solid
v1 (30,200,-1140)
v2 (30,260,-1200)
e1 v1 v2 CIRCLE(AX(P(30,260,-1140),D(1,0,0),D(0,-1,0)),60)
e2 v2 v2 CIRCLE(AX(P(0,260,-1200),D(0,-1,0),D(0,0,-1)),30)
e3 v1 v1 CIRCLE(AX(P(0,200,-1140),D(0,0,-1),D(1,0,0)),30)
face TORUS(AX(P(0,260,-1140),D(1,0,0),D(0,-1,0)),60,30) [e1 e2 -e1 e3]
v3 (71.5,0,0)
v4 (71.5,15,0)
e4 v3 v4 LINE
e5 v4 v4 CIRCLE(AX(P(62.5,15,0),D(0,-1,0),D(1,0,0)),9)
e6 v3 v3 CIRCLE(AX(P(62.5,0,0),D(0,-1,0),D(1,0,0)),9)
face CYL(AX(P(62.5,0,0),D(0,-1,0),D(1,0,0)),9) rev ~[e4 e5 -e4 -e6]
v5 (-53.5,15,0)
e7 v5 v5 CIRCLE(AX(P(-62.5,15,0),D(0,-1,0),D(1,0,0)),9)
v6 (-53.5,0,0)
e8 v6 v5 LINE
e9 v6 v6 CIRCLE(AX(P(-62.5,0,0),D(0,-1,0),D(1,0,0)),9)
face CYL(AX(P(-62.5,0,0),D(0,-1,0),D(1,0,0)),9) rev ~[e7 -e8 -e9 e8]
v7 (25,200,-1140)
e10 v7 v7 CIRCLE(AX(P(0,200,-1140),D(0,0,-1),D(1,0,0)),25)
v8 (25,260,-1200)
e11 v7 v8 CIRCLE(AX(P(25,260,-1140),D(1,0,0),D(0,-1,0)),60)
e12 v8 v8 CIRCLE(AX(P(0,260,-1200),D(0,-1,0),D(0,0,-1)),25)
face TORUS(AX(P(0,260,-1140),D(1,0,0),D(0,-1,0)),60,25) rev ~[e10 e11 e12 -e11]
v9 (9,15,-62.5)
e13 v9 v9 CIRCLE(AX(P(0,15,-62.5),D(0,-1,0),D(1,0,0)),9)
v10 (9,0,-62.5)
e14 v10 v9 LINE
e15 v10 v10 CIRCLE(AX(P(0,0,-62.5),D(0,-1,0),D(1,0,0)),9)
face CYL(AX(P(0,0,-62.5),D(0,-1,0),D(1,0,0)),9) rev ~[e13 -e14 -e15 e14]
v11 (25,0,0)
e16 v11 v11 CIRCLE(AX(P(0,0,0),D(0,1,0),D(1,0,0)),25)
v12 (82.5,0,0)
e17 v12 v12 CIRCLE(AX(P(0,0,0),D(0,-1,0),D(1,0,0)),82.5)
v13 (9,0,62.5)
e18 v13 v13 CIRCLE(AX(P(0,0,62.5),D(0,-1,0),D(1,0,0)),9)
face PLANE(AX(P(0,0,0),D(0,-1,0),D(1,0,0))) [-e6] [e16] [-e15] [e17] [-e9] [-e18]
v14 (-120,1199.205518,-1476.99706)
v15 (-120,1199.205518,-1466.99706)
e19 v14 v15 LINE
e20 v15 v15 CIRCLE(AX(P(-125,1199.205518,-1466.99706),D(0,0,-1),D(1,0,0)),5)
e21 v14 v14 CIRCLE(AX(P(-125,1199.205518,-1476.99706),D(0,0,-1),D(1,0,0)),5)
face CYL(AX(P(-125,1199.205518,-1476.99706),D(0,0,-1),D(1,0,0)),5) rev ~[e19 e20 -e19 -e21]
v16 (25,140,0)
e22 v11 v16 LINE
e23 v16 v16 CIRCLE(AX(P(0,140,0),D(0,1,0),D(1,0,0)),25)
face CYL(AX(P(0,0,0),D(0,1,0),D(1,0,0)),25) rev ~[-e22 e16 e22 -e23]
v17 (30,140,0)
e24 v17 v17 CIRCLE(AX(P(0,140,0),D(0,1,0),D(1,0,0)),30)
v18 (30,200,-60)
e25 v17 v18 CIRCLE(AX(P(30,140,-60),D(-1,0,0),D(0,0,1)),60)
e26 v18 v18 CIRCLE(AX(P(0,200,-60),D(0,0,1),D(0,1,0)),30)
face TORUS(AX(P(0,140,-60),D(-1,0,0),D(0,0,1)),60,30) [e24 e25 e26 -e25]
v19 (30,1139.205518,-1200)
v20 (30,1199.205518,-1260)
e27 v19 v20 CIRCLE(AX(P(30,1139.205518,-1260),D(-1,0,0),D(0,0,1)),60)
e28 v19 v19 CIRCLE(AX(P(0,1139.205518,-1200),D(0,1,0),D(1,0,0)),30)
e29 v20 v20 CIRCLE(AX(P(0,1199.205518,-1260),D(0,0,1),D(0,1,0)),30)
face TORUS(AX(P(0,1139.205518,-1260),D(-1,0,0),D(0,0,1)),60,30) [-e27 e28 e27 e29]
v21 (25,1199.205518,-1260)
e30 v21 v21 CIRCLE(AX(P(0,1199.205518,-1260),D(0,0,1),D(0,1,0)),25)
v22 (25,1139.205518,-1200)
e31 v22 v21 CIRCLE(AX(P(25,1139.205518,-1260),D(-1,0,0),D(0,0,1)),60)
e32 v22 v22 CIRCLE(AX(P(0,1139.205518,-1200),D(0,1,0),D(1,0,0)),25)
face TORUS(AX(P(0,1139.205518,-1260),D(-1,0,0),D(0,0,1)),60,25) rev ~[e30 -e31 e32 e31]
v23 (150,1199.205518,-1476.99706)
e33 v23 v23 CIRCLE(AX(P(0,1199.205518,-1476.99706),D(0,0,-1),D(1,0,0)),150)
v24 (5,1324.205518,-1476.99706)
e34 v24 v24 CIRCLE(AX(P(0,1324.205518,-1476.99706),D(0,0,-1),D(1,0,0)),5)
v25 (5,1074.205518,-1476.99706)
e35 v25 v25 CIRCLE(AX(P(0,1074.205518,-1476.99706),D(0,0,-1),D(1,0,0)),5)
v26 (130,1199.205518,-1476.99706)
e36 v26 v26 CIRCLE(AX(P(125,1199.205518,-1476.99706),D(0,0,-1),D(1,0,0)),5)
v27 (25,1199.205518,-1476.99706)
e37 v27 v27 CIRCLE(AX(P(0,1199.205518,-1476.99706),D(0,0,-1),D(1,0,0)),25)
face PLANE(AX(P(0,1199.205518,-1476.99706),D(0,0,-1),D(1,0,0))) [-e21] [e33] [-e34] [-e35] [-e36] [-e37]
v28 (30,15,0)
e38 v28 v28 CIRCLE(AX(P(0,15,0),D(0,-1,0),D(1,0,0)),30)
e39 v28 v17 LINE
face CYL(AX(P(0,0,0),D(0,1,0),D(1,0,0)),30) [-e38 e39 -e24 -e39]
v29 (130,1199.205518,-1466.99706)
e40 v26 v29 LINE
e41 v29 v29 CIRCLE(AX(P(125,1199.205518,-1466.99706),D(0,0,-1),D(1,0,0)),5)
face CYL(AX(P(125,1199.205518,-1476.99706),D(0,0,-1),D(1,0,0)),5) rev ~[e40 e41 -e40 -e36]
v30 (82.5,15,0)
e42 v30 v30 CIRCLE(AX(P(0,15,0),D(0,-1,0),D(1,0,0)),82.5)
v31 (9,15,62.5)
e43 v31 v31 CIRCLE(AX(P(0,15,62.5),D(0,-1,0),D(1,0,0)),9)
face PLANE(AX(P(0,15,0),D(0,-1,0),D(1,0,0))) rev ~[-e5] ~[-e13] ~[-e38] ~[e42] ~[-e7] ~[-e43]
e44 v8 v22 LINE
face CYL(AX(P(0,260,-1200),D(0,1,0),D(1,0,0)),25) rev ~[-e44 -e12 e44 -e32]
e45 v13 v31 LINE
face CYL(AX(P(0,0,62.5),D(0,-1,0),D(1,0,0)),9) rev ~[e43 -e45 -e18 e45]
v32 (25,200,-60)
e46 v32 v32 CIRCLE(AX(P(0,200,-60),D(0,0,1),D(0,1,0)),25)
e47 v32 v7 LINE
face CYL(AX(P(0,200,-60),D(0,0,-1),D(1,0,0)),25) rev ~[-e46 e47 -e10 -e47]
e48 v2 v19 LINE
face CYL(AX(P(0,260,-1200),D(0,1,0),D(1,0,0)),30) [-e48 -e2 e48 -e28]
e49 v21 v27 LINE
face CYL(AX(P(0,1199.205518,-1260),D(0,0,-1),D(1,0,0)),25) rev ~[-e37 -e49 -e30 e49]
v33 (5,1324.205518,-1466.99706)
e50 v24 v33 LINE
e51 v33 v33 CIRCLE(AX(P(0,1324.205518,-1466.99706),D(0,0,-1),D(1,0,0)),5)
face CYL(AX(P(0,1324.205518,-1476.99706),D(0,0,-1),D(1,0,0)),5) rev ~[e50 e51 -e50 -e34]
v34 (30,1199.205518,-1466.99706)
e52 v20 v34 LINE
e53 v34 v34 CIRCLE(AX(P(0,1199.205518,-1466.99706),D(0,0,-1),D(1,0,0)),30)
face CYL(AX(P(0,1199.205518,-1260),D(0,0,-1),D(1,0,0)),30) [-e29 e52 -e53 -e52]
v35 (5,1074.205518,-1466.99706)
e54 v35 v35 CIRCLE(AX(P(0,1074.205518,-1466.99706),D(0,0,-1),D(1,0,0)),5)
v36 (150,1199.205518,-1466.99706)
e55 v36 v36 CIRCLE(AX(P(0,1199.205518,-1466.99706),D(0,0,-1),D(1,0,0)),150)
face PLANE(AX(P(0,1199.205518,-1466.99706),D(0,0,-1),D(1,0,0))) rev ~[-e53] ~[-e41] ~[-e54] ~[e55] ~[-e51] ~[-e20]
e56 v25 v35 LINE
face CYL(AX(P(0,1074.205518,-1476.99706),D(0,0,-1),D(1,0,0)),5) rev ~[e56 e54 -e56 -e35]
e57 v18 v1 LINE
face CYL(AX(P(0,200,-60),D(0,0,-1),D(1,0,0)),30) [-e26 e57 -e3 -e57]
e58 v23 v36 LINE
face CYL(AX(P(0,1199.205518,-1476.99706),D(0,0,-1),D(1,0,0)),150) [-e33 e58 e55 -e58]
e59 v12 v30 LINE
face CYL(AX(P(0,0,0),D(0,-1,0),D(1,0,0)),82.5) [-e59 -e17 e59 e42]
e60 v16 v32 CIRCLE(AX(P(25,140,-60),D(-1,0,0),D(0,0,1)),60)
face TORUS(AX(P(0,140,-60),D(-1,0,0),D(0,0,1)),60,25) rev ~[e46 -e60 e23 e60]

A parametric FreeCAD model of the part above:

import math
import FreeCAD as App
import Part
import Sketcher
from FreeCAD import Vector

doc = App.newDocument("Part")
body = doc.addObject("PartDesign::Body", "Body")

sketch1 = body.newObject("Sketcher::SketchObject", "Sketch")
sketch1.AttachmentSupport = (doc.getObject("XZ_Plane"), [""])
sketch1.MapMode = "FlatFace"
sketch1.addGeometry([
    Part.Circle(Vector(0, 0, 0), Vector(0, 0, 1), 30),
    Part.Circle(Vector(0, 0, 0), Vector(0, 0, 1), 25),
], False)
sketch1.addConstraint([
    Sketcher.Constraint("Coincident", 0, 3, -1, 1),
    Sketcher.Constraint("Coincident", 1, 3, -1, 1),
    Sketcher.Constraint("Diameter", 0, 60.0),
    Sketcher.Constraint("Diameter", 1, 50.0),
])

sketch2 = body.newObject("Sketcher::SketchObject", "Sketch001")
sketch2.AttachmentSupport = (doc.getObject("YZ_Plane"), [""])
sketch2.MapMode = "FlatFace"
sketch2.addGeometry([
    Part.LineSegment(Vector(0, 0, 0), Vector(140, 0, 0)),
    Part.ArcOfCircle(Part.Circle(Vector(140, -60, 0), Vector(0, 0, 1), 60), math.radians(0), math.radians(90)),
    Part.LineSegment(Vector(200, -60, 0), Vector(200, -1140, 0)),
    Part.ArcOfCircle(Part.Circle(Vector(260, -1140, 0), Vector(0, 0, 1), 60), math.radians(180), math.radians(270)),
    Part.LineSegment(Vector(260, -1200, 0), Vector(1139, -1200, 0)),
    Part.ArcOfCircle(Part.Circle(Vector(1139, -1260, 0), Vector(0, 0, 1), 60), math.radians(0), math.radians(90)),
    Part.LineSegment(Vector(1199, -1260, 0), Vector(1199, -1477, 0)),
], False)
sketch2.addConstraint([
    Sketcher.Constraint("Tangent", 0, 2, 1, 2),
    Sketcher.Constraint("Tangent", 1, 1, 2, 1),
    Sketcher.Constraint("Tangent", 2, 2, 3, 1),
    Sketcher.Constraint("Tangent", 3, 2, 4, 1),
    Sketcher.Constraint("Tangent", 4, 2, 5, 2),
    Sketcher.Constraint("Tangent", 5, 1, 6, 1),
    Sketcher.Constraint("Horizontal", 0),
    Sketcher.Constraint("Vertical", 2),
    Sketcher.Constraint("Horizontal", 4),
    Sketcher.Constraint("Vertical", 6),
    Sketcher.Constraint("Coincident", 0, 1, -1, 1),
    Sketcher.Constraint("Equal", 1, 3),
    Sketcher.Constraint("Equal", 3, 5),
    Sketcher.Constraint("Radius", 1, 60.0),
    Sketcher.Constraint("DistanceX", 0, 1, 0, 2, 140.0),
    Sketcher.Constraint("DistanceY", 2, 2, 2, 1, 1080.0),
    Sketcher.Constraint("DistanceY", 6, 2, 6, 1, 216.99706),
    Sketcher.Constraint("DistanceX", 4, 1, 4, 2, 879.205518),
])
doc.recompute()

additivepipe = body.newObject("PartDesign::AdditivePipe", "AdditivePipe")
additivepipe.Profile = sketch1
additivepipe.Spine = (sketch2, ["Edge1", "Edge2", "Edge3", "Edge4", "Edge5", "Edge6", "Edge7"])

sketch3 = body.newObject("Sketcher::SketchObject", "Sketch002")
sketch3.AttachmentSupport = (doc.getObject("XZ_Plane"), [""])
sketch3.MapMode = "FlatFace"
sketch3.addGeometry([
    Part.Circle(Vector(0, 0, 0), Vector(0, 0, 1), 82),
    Part.Circle(Vector(0, -62, 0), Vector(0, 0, 1), 9),
    Part.Circle(Vector(-62, 0, 0), Vector(0, 0, 1), 9),
    Part.Circle(Vector(0, 0, 0), Vector(0, 0, 1), 30),
    Part.Circle(Vector(62, 0, 0), Vector(0, 0, 1), 9),
    Part.Circle(Vector(0, 62, 0), Vector(0, 0, 1), 9),
], False)
sketch3.addConstraint([
    Sketcher.Constraint("Coincident", 0, 3, -1, 1),
    Sketcher.Constraint("Coincident", 3, 3, -1, 1),
    Sketcher.Constraint("Equal", 1, 2),
    Sketcher.Constraint("Equal", 2, 4),
    Sketcher.Constraint("Equal", 4, 5),
    Sketcher.Constraint("Symmetric", 2, 3, 4, 3, -1, 1),
    Sketcher.Constraint("Symmetric", 1, 3, 5, 3, -1, 1),
    Sketcher.Constraint("PointOnObject", 1, 3, -2),
    Sketcher.Constraint("PointOnObject", 2, 3, -1),
    Sketcher.Constraint("Diameter", 0, 165.0),
    Sketcher.Constraint("Diameter", 1, 18.0),
    Sketcher.Constraint("Diameter", 3, 60.0),
    Sketcher.Constraint("DistanceX", 2, 3, 4, 3, 125.0),
    Sketcher.Constraint("DistanceY", 1, 3, 5, 3, 125.0),
])
pad1 = body.newObject("PartDesign::Pad", "Pad")
pad1.Profile = sketch3
pad1.Length = 15
pad1.Reversed = True

sketch4 = body.newObject("Sketcher::SketchObject", "Sketch003")
sketch4.AttachmentSupport = (doc.getObject("XY_Plane"), [""])
sketch4.MapMode = "FlatFace"
sketch4.AttachmentOffset = App.Placement(Vector(0, 0, -1476.99706), App.Rotation())
sketch4.addGeometry([
    Part.Circle(Vector(0, 1199, 0), Vector(0, 0, 1), 150),
    Part.Circle(Vector(0, 1324, 0), Vector(0, 0, 1), 5),
    Part.Circle(Vector(-125, 1199, 0), Vector(0, 0, 1), 5),
    Part.Circle(Vector(0, 1199, 0), Vector(0, 0, 1), 30),
    Part.Circle(Vector(125, 1199, 0), Vector(0, 0, 1), 5),
    Part.Circle(Vector(0, 1074, 0), Vector(0, 0, 1), 5),
], False)
sketch4.addConstraint([
    Sketcher.Constraint("Coincident", 3, 3, 0, 3),
    Sketcher.Constraint("Equal", 1, 2),
    Sketcher.Constraint("Equal", 2, 4),
    Sketcher.Constraint("Equal", 4, 5),
    Sketcher.Constraint("Symmetric", 2, 3, 4, 3, -2),
    Sketcher.Constraint("PointOnObject", 0, 3, -2),
    Sketcher.Constraint("PointOnObject", 1, 3, -2),
    Sketcher.Constraint("PointOnObject", 5, 3, -2),
    Sketcher.Constraint("Horizontal", 0, 3, 2, 3),
    Sketcher.Constraint("Diameter", 0, 300.0),
    Sketcher.Constraint("Diameter", 1, 10.0),
    Sketcher.Constraint("Diameter", 3, 60.0),
    Sketcher.Constraint("DistanceX", 2, 3, -1, 1, 125.0),
    Sketcher.Constraint("DistanceY", 0, 3, 1, 3, 125.0),
    Sketcher.Constraint("DistanceY", 5, 3, 0, 3, 125.0),
    Sketcher.Constraint("DistanceY", -1, 1, 0, 3, 1199.205518),
])
pad2 = body.newObject("PartDesign::Pad", "Pad001")
pad2.Profile = sketch4
pad2.Length = 10

doc.recompute()
